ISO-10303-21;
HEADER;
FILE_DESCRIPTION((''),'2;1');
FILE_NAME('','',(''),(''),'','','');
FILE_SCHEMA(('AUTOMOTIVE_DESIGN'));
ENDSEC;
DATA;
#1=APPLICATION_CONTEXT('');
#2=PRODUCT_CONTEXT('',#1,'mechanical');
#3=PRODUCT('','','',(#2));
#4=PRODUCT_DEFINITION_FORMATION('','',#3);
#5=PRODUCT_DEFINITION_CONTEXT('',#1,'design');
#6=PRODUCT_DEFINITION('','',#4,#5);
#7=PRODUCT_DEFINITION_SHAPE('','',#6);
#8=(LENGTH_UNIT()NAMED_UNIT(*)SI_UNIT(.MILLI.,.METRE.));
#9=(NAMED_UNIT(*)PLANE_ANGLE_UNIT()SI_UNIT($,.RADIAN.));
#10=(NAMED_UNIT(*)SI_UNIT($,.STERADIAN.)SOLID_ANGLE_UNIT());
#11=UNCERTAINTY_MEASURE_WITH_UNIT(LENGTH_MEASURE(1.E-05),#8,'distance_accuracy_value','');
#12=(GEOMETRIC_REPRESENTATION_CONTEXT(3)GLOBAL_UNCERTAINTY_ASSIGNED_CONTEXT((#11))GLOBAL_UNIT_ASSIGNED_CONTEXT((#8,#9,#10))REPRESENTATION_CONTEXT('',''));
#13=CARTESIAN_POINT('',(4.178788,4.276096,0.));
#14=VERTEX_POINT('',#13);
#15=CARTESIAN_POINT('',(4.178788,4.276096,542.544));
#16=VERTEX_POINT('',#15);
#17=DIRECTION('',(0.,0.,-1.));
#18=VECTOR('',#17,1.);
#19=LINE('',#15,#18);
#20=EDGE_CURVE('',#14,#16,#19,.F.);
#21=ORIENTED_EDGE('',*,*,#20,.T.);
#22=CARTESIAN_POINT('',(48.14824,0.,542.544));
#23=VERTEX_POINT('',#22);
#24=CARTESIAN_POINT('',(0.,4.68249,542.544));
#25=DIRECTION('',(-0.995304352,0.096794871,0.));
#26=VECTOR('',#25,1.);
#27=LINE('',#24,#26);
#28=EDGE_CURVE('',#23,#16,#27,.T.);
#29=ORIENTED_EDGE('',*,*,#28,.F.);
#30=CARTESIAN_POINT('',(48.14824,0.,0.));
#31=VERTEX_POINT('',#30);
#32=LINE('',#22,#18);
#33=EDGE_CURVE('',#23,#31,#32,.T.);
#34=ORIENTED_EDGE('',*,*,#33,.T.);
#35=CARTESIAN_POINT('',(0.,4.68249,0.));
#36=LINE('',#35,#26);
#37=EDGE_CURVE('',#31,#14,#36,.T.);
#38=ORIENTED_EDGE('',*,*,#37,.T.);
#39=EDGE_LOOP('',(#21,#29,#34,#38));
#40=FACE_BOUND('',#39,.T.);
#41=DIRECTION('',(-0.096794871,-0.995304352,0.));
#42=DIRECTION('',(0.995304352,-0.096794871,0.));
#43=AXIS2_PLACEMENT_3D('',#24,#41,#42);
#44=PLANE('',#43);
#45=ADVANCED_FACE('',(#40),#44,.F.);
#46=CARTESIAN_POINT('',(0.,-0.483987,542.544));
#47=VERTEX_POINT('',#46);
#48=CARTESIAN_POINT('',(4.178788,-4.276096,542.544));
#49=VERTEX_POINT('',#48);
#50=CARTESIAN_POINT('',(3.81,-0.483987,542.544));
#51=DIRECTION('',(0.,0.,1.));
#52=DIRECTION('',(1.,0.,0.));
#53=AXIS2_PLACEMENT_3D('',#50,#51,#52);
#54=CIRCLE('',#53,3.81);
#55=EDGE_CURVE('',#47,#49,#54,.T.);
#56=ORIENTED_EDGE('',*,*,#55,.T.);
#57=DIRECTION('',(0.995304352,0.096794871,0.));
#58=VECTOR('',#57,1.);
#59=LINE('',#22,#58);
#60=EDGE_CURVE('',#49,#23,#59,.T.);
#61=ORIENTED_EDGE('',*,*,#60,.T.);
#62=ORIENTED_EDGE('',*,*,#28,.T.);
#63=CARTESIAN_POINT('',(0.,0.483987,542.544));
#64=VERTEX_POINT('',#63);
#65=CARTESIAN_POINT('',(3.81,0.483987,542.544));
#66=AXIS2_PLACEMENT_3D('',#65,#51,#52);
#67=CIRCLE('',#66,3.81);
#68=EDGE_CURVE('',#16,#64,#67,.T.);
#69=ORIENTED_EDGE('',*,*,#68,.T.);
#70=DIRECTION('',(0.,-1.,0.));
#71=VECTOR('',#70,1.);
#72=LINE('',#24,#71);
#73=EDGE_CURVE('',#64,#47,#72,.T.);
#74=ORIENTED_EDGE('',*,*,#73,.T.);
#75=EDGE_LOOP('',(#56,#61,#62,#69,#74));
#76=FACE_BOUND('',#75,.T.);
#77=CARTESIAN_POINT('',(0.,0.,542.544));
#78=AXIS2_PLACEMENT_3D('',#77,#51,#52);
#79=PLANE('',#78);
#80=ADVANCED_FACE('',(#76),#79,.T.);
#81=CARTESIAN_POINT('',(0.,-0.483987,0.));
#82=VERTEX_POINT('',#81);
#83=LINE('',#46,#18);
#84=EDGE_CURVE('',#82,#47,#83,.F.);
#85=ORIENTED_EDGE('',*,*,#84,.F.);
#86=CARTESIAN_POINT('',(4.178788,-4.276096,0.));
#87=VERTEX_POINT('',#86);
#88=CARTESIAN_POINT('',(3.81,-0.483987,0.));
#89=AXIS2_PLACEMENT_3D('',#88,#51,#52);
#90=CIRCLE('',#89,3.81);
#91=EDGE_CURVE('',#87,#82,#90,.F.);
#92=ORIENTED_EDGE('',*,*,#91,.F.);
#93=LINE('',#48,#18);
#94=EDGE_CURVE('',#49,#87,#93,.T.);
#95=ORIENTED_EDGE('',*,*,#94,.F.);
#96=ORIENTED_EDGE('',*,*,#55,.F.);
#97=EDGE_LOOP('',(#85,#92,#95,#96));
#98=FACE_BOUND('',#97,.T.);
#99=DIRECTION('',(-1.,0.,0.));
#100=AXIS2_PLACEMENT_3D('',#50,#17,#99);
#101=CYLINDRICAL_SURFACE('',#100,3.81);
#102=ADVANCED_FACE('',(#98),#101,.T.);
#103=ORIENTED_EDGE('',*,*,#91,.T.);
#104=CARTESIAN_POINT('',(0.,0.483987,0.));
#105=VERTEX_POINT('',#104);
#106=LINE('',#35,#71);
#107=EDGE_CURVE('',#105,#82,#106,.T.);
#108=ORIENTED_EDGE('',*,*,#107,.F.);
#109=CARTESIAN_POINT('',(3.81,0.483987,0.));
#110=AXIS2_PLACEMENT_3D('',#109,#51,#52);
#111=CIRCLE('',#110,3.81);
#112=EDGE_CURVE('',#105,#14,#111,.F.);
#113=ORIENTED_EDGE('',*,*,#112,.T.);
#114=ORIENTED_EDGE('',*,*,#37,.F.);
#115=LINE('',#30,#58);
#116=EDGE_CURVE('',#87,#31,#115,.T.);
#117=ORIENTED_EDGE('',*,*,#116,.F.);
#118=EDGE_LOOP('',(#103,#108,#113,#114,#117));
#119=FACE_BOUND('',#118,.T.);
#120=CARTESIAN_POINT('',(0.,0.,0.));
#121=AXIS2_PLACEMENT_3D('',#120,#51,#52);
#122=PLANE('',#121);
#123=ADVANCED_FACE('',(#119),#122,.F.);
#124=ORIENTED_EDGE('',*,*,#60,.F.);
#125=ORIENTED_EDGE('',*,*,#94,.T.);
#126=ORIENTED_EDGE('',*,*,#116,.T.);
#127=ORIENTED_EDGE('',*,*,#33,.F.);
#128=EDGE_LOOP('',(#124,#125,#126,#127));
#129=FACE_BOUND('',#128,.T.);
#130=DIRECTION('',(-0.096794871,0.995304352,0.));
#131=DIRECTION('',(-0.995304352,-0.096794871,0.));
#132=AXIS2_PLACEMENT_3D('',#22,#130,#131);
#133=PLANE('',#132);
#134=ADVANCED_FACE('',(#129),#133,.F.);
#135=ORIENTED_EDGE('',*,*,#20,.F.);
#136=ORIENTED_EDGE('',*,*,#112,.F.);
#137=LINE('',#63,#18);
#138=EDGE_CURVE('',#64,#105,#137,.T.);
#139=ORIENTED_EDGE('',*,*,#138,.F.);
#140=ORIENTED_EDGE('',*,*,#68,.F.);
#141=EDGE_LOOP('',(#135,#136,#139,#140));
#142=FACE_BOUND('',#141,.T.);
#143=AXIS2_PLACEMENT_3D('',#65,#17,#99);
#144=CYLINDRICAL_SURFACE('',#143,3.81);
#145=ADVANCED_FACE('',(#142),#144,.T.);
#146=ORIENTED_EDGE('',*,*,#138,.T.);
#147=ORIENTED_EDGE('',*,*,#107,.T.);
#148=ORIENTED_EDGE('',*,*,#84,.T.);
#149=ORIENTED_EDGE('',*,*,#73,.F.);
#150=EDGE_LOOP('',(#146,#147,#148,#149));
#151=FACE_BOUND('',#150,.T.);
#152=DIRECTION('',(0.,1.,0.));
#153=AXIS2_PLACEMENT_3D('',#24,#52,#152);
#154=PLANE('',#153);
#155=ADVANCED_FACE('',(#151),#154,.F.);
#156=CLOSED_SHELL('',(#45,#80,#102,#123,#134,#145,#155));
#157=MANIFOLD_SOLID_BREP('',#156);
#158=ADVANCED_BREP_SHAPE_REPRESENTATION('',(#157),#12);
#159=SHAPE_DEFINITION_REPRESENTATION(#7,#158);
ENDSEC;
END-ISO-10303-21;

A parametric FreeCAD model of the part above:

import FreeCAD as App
import Part
import Sketcher
Q = App.Units.Quantity


def edges_at(feature, points):
    """Names of the edges that pass closest to the given points."""
    edges = feature.Shape.Edges
    near = lambda p: min(range(len(edges)), key=lambda i: edges[i].distToShape(Part.Vertex(*p))[0])
    return sorted({f"Edge{near(p) + 1}" for p in points})

doc = App.newDocument("Part")
body = doc.addObject("PartDesign::Body", "Body")

# Sketch on XY plane
sketch1 = body.newObject("Sketcher::SketchObject", "Sketch")
sketch1.AttachmentSupport = (doc.getObject("XY_Plane"), [""])
sketch1.MapMode = "FlatFace"
sketch1.addGeometry(Part.LineSegment(App.Vector(0, 5, 0), App.Vector(0, -5, 0)), False)
sketch1.addGeometry(Part.LineSegment(App.Vector(0, -5, 0), App.Vector(48, 0, 0)), False)
sketch1.addGeometry(Part.LineSegment(App.Vector(48, 0, 0), App.Vector(0, 5, 0)), False)
sketch1.addConstraint(Sketcher.Constraint("Coincident", 0, 2, 1, 1))
sketch1.addConstraint(Sketcher.Constraint("Coincident", 1, 2, 2, 1))
sketch1.addConstraint(Sketcher.Constraint("Coincident", 2, 2, 0, 1))
sketch1.addConstraint(Sketcher.Constraint("Vertical", 0))
sketch1.addConstraint(Sketcher.Constraint("Symmetric", 0, 2, 2, 2, -1, 1))
sketch1.addConstraint(Sketcher.Constraint("PointOnObject", 1, 2, -1))
sketch1.addConstraint(Sketcher.Constraint("DistanceY", 0, 2, 0, 1, Q("0.3687 in")))
sketch1.addConstraint(Sketcher.Constraint("DistanceX", -1, 1, 1, 2, Q("1.8956 in")))
pad1 = body.newObject("PartDesign::Pad", "Pad")
pad1.Profile = sketch1
pad1.Length = Q("21.36 in")
doc.recompute()

fillet = body.newObject("PartDesign::Fillet", "Fillet")
fillet.Base = (pad1, edges_at(pad1, [(0, -4.682, 271.272), (0, 4.682, 271.272)]))
fillet.Radius = Q("0.15 in")

doc.recompute()
